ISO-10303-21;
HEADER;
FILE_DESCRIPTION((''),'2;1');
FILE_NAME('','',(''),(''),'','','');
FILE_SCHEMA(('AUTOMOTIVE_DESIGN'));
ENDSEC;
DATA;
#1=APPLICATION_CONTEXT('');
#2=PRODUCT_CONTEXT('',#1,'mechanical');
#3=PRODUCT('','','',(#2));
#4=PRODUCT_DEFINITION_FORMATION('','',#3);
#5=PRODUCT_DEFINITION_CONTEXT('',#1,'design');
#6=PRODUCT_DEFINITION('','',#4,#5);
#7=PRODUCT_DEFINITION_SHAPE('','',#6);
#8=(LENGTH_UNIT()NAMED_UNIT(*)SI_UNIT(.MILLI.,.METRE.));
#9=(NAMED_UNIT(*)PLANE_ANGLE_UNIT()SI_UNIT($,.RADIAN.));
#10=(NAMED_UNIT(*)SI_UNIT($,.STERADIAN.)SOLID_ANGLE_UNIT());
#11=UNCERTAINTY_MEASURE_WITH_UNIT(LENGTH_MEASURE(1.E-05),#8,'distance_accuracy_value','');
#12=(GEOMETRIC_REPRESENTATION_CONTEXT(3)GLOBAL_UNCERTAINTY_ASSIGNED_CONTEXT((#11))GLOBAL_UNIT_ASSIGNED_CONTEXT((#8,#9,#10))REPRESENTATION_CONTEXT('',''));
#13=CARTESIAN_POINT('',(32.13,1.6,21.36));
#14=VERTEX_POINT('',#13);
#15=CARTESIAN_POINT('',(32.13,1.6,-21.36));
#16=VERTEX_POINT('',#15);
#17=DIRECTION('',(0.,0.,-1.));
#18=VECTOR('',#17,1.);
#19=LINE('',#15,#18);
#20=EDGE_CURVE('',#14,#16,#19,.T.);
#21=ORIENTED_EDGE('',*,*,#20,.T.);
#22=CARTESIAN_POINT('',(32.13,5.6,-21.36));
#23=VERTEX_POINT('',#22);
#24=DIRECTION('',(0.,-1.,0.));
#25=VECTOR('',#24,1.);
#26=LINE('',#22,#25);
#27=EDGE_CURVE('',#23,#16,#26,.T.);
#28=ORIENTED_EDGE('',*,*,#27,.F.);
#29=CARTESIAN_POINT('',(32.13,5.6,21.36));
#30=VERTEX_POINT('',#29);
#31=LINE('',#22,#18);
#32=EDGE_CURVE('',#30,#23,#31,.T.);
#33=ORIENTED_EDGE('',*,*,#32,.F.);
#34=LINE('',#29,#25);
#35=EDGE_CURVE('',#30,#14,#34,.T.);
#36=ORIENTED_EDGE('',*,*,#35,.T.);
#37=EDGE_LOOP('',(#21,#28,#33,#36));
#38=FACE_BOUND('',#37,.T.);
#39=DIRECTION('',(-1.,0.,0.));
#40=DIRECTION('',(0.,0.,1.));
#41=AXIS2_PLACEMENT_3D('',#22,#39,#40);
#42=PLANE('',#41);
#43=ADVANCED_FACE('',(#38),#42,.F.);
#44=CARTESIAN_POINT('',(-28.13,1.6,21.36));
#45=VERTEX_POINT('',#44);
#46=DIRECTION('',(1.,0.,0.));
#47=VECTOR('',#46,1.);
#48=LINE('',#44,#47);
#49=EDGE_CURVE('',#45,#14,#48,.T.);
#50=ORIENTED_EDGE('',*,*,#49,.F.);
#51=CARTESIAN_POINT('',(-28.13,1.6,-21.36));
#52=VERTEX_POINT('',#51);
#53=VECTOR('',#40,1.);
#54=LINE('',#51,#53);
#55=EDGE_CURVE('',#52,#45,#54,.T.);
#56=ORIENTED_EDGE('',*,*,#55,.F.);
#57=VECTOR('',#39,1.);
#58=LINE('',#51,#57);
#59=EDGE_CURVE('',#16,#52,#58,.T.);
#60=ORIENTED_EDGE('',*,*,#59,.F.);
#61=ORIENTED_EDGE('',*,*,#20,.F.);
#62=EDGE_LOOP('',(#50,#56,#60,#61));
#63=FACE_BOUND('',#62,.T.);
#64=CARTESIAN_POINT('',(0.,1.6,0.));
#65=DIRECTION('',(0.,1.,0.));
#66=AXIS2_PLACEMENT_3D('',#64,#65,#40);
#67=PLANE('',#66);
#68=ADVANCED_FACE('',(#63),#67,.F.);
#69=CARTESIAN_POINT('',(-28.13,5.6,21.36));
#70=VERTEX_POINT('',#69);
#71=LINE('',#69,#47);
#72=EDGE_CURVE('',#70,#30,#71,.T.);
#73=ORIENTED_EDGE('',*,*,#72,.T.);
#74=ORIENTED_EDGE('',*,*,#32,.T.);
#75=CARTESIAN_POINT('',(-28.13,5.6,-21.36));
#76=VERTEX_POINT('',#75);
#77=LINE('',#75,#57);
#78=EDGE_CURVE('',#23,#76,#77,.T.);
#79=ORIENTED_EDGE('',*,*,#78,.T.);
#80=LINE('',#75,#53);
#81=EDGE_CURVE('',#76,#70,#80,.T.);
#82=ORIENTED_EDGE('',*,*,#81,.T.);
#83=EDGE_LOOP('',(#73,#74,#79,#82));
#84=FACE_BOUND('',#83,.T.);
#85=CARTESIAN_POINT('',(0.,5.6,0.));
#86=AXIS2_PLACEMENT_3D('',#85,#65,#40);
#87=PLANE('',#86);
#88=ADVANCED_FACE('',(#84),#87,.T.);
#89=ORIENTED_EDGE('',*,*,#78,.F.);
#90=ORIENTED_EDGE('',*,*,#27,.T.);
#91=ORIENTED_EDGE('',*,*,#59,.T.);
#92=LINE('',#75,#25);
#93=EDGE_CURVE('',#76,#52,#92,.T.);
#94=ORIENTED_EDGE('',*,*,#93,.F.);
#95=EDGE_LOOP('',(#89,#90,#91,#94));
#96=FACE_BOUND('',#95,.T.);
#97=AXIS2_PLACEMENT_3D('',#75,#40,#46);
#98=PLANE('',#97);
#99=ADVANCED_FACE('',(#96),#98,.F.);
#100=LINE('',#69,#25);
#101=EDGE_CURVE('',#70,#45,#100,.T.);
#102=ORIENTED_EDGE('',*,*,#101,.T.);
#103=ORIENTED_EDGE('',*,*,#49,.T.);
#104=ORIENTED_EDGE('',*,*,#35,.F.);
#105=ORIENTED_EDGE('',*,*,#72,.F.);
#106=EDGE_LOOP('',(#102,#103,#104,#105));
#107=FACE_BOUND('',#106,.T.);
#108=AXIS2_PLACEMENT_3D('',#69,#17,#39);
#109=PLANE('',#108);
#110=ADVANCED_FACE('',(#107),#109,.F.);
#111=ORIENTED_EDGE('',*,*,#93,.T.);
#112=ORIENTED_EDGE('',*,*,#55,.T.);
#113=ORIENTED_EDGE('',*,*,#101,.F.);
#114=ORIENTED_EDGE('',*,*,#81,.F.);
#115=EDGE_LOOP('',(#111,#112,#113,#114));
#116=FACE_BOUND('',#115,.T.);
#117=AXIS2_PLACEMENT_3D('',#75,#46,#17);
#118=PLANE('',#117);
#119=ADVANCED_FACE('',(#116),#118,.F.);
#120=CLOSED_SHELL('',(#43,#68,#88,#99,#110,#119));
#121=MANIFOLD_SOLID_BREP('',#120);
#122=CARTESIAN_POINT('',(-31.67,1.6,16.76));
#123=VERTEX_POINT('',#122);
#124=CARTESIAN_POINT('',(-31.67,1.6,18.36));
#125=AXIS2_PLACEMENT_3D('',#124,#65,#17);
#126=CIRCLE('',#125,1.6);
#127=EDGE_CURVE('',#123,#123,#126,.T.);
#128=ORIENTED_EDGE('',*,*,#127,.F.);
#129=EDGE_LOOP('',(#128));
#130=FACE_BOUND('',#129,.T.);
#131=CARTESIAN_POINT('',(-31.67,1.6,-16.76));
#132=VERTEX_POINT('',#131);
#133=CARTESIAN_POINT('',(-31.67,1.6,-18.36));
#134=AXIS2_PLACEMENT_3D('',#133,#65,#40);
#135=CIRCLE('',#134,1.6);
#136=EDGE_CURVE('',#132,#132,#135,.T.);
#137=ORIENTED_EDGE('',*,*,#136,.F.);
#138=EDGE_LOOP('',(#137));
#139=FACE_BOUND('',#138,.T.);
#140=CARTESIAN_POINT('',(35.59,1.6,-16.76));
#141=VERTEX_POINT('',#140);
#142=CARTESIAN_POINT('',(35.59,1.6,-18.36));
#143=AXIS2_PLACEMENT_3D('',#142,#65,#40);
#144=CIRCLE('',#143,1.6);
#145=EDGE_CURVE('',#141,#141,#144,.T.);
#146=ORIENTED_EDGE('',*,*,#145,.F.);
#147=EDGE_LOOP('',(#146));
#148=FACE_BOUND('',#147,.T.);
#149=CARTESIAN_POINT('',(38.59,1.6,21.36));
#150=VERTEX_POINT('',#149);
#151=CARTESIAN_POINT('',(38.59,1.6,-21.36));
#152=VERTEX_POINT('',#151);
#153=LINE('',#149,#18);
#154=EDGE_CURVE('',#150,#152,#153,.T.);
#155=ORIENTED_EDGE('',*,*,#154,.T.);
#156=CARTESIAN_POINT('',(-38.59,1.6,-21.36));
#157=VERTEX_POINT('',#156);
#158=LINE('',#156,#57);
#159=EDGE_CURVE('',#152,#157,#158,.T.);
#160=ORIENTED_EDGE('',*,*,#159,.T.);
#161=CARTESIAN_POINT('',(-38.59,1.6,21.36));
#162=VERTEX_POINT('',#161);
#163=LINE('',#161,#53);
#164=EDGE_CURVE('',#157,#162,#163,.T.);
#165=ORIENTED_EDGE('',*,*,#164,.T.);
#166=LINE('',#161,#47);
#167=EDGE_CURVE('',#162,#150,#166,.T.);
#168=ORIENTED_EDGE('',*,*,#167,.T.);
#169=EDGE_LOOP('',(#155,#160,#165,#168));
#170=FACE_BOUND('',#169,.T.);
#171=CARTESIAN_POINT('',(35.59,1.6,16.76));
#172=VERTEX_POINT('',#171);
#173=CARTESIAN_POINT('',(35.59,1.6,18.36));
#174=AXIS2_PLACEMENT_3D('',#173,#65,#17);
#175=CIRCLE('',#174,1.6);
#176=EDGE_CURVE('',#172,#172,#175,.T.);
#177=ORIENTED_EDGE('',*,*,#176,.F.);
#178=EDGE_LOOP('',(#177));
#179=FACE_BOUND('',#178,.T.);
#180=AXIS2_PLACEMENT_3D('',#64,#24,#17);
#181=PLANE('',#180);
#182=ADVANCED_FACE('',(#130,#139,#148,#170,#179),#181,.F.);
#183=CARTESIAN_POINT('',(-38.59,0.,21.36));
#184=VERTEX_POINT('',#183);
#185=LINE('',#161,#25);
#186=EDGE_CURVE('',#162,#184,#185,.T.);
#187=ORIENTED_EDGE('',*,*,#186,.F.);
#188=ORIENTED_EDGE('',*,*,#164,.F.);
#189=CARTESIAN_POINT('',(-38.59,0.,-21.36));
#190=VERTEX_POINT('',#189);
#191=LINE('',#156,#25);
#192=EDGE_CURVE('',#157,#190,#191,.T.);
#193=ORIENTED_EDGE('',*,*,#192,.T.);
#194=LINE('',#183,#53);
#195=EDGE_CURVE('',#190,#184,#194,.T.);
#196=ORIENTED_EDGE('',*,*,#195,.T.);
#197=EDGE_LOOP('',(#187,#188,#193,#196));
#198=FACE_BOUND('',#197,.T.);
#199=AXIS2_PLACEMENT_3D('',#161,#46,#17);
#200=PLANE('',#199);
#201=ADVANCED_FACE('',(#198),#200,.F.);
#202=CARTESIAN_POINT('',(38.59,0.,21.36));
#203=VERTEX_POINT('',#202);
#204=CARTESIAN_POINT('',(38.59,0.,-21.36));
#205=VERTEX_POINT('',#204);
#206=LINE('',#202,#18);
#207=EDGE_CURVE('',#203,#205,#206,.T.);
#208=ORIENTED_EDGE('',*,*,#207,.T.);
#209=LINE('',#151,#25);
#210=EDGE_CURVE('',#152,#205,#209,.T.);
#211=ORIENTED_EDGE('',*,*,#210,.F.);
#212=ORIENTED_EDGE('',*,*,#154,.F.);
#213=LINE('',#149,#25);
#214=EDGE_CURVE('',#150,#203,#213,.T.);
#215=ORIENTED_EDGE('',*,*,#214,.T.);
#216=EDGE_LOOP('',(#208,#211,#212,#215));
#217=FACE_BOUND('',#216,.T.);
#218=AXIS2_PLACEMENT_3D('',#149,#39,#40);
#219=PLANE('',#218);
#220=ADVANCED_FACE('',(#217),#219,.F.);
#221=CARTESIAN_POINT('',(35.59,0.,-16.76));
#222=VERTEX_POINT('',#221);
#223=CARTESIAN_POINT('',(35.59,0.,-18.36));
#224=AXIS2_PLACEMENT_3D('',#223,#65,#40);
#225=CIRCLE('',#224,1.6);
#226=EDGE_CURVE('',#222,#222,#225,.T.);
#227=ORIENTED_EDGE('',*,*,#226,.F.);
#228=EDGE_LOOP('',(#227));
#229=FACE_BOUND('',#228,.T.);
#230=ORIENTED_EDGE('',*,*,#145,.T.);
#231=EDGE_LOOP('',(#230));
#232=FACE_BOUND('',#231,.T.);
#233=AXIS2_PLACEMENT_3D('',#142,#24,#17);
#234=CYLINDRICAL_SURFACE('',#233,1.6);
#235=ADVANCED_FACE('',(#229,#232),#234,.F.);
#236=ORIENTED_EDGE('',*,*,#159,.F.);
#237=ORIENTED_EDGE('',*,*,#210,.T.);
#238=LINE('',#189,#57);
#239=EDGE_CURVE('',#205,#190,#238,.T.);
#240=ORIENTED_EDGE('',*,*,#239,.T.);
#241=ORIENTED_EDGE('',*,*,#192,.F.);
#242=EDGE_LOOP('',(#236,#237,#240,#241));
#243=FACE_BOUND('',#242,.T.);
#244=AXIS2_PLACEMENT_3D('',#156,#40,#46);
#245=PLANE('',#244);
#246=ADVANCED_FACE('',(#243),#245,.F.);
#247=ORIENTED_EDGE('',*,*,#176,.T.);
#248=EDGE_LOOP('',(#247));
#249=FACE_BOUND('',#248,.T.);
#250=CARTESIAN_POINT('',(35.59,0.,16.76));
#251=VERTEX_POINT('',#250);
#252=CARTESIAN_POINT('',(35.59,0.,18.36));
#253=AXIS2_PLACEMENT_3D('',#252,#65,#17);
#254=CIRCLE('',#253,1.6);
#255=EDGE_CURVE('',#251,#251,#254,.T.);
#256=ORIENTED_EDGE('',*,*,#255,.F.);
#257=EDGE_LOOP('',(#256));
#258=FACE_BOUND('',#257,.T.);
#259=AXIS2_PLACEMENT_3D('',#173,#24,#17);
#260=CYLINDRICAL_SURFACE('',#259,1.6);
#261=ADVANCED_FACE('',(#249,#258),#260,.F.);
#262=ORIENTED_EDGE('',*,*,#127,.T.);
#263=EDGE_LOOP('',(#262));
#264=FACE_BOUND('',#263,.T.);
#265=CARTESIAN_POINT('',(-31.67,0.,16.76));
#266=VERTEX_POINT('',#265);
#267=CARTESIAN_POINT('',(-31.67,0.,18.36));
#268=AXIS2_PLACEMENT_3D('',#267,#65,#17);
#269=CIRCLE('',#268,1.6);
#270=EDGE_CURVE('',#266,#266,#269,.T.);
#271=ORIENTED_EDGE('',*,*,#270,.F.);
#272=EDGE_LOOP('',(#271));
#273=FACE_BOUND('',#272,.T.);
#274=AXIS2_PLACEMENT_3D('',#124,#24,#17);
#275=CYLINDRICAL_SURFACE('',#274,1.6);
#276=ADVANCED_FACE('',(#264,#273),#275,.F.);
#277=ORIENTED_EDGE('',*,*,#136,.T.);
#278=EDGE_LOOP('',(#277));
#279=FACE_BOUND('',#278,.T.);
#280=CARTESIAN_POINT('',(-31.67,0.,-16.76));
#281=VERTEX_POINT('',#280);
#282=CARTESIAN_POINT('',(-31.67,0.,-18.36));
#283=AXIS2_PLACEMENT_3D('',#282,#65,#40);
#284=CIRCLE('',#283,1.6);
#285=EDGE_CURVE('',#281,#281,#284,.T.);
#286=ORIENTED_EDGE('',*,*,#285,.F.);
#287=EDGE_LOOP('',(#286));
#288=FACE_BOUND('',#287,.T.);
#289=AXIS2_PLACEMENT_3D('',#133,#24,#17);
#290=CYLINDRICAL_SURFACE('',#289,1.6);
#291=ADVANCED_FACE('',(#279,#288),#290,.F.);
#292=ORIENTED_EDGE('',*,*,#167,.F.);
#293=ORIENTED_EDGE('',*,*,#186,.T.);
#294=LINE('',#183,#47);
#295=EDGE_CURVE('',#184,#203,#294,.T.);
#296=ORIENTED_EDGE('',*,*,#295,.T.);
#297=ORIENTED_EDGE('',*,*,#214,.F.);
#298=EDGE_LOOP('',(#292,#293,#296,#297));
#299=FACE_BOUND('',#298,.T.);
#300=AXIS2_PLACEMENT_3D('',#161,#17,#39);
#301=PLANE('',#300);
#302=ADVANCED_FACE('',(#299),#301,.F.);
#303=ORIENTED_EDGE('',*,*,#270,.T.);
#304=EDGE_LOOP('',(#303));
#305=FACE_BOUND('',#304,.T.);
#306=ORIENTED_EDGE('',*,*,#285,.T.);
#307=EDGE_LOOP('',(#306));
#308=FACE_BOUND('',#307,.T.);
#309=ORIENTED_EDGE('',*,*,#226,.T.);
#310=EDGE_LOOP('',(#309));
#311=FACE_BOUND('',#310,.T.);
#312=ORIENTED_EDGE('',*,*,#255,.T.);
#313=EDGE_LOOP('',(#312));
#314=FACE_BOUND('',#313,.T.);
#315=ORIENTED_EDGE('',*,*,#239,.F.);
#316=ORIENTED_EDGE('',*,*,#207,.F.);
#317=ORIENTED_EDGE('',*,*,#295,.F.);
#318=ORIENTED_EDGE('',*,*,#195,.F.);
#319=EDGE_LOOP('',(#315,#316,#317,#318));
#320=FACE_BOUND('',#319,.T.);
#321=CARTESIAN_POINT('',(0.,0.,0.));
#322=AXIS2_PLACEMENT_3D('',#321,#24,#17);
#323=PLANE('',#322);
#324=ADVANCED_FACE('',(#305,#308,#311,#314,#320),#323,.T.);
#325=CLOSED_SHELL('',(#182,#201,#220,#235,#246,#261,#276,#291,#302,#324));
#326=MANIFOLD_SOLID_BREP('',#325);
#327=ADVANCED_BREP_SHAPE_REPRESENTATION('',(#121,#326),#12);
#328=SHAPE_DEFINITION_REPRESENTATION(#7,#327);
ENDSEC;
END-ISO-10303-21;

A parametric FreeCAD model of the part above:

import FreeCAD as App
import Part
import Sketcher


def add_polygon(sketch, points):
    """Adds a closed chain of lines whose ends are joined by coincident constraints."""
    first, n = sketch.GeometryCount, len(points)
    for a, b in zip(points, points[1:] + points[:1]):
        sketch.addGeometry(Part.LineSegment(App.Vector(*a, 0), App.Vector(*b, 0)), False)
    for i in range(n):
        sketch.addConstraint(Sketcher.Constraint("Coincident", first + i, 2, first + (i + 1) % n, 1))

doc = App.newDocument("Part")
body = doc.addObject("PartDesign::Body", "Body")

# Sketch on XZ plane
sketch1 = doc.addObject("Sketcher::SketchObject", "Sketch")
body.addObject(sketch1)
sketch1.AttachmentSupport = (doc.XZ_Plane, [""])
sketch1.MapMode = "FlatFace"
add_polygon(sketch1, [(-38.6, -21.4), (-38.6, 21.4), (38.6, 21.4), (38.6, -21.4)])  # lines 0-3
sketch1.addGeometry(Part.Circle(App.Vector(-31.7, 18.4, 0), App.Vector(0, 0, 1), 1.6), False)  # 4
sketch1.addGeometry(Part.Circle(App.Vector(35.6, 18.4, 0), App.Vector(0, 0, 1), 1.6), False)  # 5
sketch1.addGeometry(Part.Circle(App.Vector(-31.7, -18.4, 0), App.Vector(0, 0, 1), 1.6), False)  # 6
sketch1.addGeometry(Part.Circle(App.Vector(35.6, -18.4, 0), App.Vector(0, 0, 1), 1.6), False)  # 7
sketch1.addConstraint([
    Sketcher.Constraint("Vertical", 0),
    Sketcher.Constraint("Horizontal", 1),
    Sketcher.Constraint("Vertical", 2),
    Sketcher.Constraint("Horizontal", 3),
    Sketcher.Constraint("Equal", 4, 5),
    Sketcher.Constraint("Equal", 5, 6),
    Sketcher.Constraint("Equal", 6, 7),
    Sketcher.Constraint("Symmetric", 0, 2, 2, 2, -1, 1),
    Sketcher.Constraint("Symmetric", 4, 3, 6, 3, -1),
    Sketcher.Constraint("Symmetric", 5, 3, 7, 3, -1),
    Sketcher.Constraint("Horizontal", 4, 3, 5, 3),
    Sketcher.Constraint("Diameter", 4, 3.2),
    Sketcher.Constraint("DistanceY", 4, 3, 0, 2, 3.0),
    Sketcher.Constraint("DistanceX", 5, 3, 1, 2, 3.0),
    Sketcher.Constraint("DistanceX", 1, 1, 1, 2, 77.18),
    Sketcher.Constraint("DistanceY", 0, 1, 0, 2, 42.72),
    Sketcher.Constraint("DistanceX", 4, 3, -1, 1, 31.67),
])
pad1 = doc.addObject("PartDesign::Pad", "Pad")
body.addObject(pad1)
pad1.Profile = sketch1
pad1.Length = 1.6
pad1.Reversed = True
body2 = doc.addObject("PartDesign::Body", "Body001")

# Sketch on XZ plane
sketch2 = doc.addObject("Sketcher::SketchObject", "Sketch001")
body2.addObject(sketch2)
sketch2.AttachmentSupport = (doc.getObject("XZ_Plane001"), [""])
sketch2.MapMode = "FlatFace"
sketch2.AttachmentOffset = App.Placement(App.Vector(0, 0, -1.6), App.Rotation())
add_polygon(sketch2, [(-28, -21), (-28, 21), (32, 21), (32, -21)])  # lines 0-3
sketch2.addConstraint([
    Sketcher.Constraint("Vertical", 0),
    Sketcher.Constraint("Horizontal", 1),
    Sketcher.Constraint("Vertical", 2),
    Sketcher.Constraint("Horizontal", 3),
    Sketcher.Constraint("DistanceX", 1, 1, 1, 2, 60.26),
    Sketcher.Constraint("DistanceY", 0, 1, 0, 2, 42.72),
    Sketcher.Constraint("DistanceX", 0, 2, -1, 1, 28.13),
    Sketcher.Constraint("DistanceY", -1, 1, 0, 2, 21.36),
])
pad2 = doc.addObject("PartDesign::Pad", "Pad001")
body2.addObject(pad2)
pad2.Profile = sketch2
pad2.Length = 4
pad2.Reversed = True

doc.recompute()
